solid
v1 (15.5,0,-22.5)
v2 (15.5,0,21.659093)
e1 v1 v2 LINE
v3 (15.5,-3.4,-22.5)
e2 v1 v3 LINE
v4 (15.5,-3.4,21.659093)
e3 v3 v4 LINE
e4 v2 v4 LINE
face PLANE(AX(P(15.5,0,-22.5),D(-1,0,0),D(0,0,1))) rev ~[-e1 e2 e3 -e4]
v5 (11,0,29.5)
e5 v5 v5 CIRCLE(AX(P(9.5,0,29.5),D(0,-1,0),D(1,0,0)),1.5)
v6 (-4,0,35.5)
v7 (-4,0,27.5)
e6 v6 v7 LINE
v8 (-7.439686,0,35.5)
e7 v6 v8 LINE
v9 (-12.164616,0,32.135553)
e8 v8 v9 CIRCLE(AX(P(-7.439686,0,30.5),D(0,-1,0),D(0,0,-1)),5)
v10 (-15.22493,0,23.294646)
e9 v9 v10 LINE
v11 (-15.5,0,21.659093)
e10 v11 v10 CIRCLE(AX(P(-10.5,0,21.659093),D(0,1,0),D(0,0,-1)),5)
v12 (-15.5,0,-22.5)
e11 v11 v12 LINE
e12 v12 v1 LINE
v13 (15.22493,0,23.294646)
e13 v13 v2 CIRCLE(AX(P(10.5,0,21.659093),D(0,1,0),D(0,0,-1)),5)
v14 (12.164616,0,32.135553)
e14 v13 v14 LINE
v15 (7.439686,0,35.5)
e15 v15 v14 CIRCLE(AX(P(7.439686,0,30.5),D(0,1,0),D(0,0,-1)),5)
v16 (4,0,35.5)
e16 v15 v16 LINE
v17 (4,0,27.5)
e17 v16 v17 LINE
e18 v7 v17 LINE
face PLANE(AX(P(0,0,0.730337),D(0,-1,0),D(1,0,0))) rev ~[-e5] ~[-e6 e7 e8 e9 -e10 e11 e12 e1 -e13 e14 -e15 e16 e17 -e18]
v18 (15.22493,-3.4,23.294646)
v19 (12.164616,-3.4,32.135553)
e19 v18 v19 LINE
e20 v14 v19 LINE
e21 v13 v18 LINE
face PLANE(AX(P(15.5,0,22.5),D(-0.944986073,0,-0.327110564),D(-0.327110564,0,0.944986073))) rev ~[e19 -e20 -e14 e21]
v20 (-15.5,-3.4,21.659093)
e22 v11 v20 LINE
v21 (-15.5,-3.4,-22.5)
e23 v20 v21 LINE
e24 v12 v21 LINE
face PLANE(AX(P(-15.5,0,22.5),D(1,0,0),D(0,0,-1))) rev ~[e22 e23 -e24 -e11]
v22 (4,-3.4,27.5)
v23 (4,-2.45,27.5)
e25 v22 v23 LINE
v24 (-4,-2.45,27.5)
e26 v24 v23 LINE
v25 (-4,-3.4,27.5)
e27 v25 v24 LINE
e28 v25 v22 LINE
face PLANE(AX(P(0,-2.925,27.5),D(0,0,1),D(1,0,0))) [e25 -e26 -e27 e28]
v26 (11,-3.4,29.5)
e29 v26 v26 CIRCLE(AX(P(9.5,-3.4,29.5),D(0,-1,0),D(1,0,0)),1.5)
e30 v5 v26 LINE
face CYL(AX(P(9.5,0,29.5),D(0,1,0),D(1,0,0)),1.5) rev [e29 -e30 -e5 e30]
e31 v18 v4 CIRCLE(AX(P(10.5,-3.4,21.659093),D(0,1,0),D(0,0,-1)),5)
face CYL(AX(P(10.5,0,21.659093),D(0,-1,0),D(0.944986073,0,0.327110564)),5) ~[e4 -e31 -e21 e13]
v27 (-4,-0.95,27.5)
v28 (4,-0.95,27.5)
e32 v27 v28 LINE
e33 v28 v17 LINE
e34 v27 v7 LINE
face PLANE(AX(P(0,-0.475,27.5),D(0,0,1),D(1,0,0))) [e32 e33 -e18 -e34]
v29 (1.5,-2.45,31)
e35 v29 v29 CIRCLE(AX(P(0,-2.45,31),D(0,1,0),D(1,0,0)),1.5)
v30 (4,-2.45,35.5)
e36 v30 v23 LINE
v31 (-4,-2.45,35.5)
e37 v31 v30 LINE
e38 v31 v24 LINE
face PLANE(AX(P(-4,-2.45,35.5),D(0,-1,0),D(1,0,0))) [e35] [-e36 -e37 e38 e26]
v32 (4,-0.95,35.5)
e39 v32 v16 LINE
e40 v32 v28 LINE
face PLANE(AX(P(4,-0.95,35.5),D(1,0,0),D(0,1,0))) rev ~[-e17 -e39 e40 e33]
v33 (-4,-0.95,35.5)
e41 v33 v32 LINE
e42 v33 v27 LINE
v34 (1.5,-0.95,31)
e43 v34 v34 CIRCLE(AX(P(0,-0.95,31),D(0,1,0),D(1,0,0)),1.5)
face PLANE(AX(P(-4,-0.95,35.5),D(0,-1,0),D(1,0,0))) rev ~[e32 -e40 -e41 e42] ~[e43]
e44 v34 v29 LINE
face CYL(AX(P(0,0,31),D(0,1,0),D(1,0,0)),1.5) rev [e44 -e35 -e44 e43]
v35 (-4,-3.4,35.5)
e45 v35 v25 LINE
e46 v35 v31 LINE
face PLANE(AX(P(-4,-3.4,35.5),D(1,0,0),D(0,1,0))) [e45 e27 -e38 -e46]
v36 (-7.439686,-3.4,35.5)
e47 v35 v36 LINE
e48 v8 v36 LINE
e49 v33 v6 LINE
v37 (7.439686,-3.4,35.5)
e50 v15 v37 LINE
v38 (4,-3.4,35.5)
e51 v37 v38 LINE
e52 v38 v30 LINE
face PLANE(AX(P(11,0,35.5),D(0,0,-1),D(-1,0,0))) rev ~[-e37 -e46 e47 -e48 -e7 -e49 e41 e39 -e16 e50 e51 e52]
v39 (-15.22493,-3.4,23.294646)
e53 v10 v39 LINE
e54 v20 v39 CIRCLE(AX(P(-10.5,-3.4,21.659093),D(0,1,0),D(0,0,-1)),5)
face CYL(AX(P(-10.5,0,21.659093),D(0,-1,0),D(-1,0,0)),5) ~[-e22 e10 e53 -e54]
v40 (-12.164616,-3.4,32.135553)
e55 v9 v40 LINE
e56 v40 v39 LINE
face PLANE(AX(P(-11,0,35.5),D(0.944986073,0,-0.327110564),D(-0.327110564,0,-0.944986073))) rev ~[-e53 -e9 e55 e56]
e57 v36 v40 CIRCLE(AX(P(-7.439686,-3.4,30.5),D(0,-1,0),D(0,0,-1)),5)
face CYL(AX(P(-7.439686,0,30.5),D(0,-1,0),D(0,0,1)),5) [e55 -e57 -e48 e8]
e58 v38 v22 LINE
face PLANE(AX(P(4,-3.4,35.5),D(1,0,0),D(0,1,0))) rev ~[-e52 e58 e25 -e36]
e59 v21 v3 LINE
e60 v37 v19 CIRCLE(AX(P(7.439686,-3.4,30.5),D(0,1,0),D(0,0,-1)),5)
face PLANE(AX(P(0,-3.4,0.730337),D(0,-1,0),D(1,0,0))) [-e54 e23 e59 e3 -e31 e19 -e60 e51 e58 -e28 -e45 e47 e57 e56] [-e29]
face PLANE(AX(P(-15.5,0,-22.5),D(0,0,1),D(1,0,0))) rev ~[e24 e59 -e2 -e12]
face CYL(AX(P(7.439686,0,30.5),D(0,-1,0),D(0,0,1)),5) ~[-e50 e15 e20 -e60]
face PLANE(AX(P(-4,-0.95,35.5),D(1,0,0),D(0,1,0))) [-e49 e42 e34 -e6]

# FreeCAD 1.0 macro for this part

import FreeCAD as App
import Part
import Sketcher
from FreeCAD import Vector


def edges_at(feature, points):
    """Names of the edges that pass closest to the given points."""
    edges = feature.Shape.Edges
    near = lambda p: min(range(len(edges)), key=lambda i: edges[i].distToShape(Part.Vertex(*p))[0])
    return sorted({f"Edge{near(p) + 1}" for p in points})


def add_polygon(sketch, points):
    """Adds a closed chain of lines whose ends are joined by coincident constraints."""
    first, n = sketch.GeometryCount, len(points)
    for a, b in zip(points, points[1:] + points[:1]):
        sketch.addGeometry(Part.LineSegment(App.Vector(*a, 0), App.Vector(*b, 0)), False)
    for i in range(n):
        sketch.addConstraint(Sketcher.Constraint("Coincident", first + i, 2, first + (i + 1) % n, 1))

doc = App.newDocument("Part")
body = doc.addObject("PartDesign::Body", "Body")

# Sketch on XZ plane
sketch1 = body.newObject("Sketcher::SketchObject", "Sketch")
sketch1.AttachmentSupport = (doc.getObject("XZ_Plane"), [""])
sketch1.MapMode = "FlatFace"
add_polygon(sketch1, [(15.5, 22.5), (11, 35.5), (-11, 35.5), (-15.5, 22.5), (-15.5, -22.5), (15.5, -22.5)])  # lines 0-5
sketch1.addGeometry(Part.Circle(Vector(0, 31, 0), Vector(0, 0, 1), 1.5), False)  # 6
sketch1.addGeometry(Part.Circle(Vector(9.5, 29.5, 0), Vector(0, 0, 1), 1.5), False)  # 7
sketch1.addConstraint([
    Sketcher.Constraint("Horizontal", 1),
    Sketcher.Constraint("Vertical", 3),
    Sketcher.Constraint("Horizontal", 4),
    Sketcher.Constraint("Vertical", 5),
    Sketcher.Constraint("Equal", 6, 7),
    Sketcher.Constraint("Symmetric", 2, 2, 4, 2, -1, 1),
    Sketcher.Constraint("PointOnObject", 6, 3, -2),
    Sketcher.Constraint("Horizontal", 2, 2, 5, 2),
    Sketcher.Constraint("Equal", 0, 2),
    Sketcher.Constraint("Diameter", 6, 3.0),
    Sketcher.Constraint("DistanceX", 1, 2, 1, 1, 22.0),
    Sketcher.Constraint("DistanceX", 4, 1, 4, 2, 31.0),
    Sketcher.Constraint("DistanceY", 3, 2, 3, 1, 45.0),
    Sketcher.Constraint("DistanceY", -1, 1, 6, 3, 31.0),
    Sketcher.Constraint("DistanceY", 7, 3, 0, 2, 6.0),
    Sketcher.Constraint("DistanceY", 2, 2, 1, 2, 13.0),
    Sketcher.Constraint("DistanceX", 2, 2, 7, 3, 25.0),
])
pad1 = body.newObject("PartDesign::Pad", "Pad")
pad1.Profile = sketch1
pad1.Length = 3.4

# Sketch on XY plane
sketch2 = body.newObject("Sketcher::SketchObject", "Sketch001")
sketch2.AttachmentSupport = (doc.getObject("XY_Plane"), [""])
sketch2.MapMode = "FlatFace"
sketch2.AttachmentOffset = App.Placement(Vector(0, 0, 35.5), App.Rotation())
add_polygon(sketch2, [(-4, 0), (-4, -0.9), (4, -0.9), (4, 0)])  # lines 0-3
sketch2.addConstraint([
    Sketcher.Constraint("Vertical", 0),
    Sketcher.Constraint("Horizontal", 1),
    Sketcher.Constraint("Vertical", 2),
    Sketcher.Constraint("Horizontal", 3),
    Sketcher.Constraint("Symmetric", 2, 2, 3, 2, -1, 1),
    Sketcher.Constraint("DistanceX", 1, 1, 1, 2, 8.0),
    Sketcher.Constraint("DistanceY", 0, 2, 0, 1, 0.95),
])
pocket1 = body.newObject("PartDesign::Pocket", "Pocket")
pocket1.Profile = sketch2
pocket1.Length = 8

# Sketch on XY plane
sketch3 = body.newObject("Sketcher::SketchObject", "Sketch002")
sketch3.AttachmentSupport = (doc.getObject("XY_Plane"), [""])
sketch3.MapMode = "FlatFace"
sketch3.AttachmentOffset = App.Placement(Vector(0, 0, 35.5), App.Rotation())
add_polygon(sketch3, [(-4, -2.5), (-4, -3.4), (4, -3.4), (4, -2.5)])  # lines 0-3
sketch3.addConstraint([
    Sketcher.Constraint("Vertical", 0),
    Sketcher.Constraint("Horizontal", 1),
    Sketcher.Constraint("Vertical", 2),
    Sketcher.Constraint("Horizontal", 3),
    Sketcher.Constraint("DistanceX", 1, 1, 1, 2, 8.0),
    Sketcher.Constraint("DistanceX", 0, 2, -1, 1, 4.0),
    Sketcher.Constraint("DistanceY", 0, 2, 0, 1, 0.95),
    Sketcher.Constraint("DistanceY", 0, 2, -1, 1, 3.4),
])
pocket2 = body.newObject("PartDesign::Pocket", "Pocket001")
pocket2.Profile = sketch3
pocket2.Length = 8
doc.recompute()

fillet = body.newObject("PartDesign::Fillet", "Fillet")
fillet.Base = (pocket2, edges_at(pocket2, [(-11, -1.7, 35.5)]))
fillet.Radius = 5
doc.recompute()

fillet2 = body.newObject("PartDesign::Fillet", "Fillet001")
fillet2.Base = (fillet, edges_at(fillet, [(11, -1.7, 35.5)]))
fillet2.Radius = 5
doc.recompute()

fillet3 = body.newObject("PartDesign::Fillet", "Fillet002")
fillet3.Base = (fillet2, edges_at(fillet2, [(15.5, -1.7, 22.5)]))
fillet3.Radius = 5
doc.recompute()

fillet4 = body.newObject("PartDesign::Fillet", "Fillet003")
fillet4.Base = (fillet3, edges_at(fillet3, [(-15.5, -1.7, 22.5)]))
fillet4.Radius = 5

doc.recompute()
